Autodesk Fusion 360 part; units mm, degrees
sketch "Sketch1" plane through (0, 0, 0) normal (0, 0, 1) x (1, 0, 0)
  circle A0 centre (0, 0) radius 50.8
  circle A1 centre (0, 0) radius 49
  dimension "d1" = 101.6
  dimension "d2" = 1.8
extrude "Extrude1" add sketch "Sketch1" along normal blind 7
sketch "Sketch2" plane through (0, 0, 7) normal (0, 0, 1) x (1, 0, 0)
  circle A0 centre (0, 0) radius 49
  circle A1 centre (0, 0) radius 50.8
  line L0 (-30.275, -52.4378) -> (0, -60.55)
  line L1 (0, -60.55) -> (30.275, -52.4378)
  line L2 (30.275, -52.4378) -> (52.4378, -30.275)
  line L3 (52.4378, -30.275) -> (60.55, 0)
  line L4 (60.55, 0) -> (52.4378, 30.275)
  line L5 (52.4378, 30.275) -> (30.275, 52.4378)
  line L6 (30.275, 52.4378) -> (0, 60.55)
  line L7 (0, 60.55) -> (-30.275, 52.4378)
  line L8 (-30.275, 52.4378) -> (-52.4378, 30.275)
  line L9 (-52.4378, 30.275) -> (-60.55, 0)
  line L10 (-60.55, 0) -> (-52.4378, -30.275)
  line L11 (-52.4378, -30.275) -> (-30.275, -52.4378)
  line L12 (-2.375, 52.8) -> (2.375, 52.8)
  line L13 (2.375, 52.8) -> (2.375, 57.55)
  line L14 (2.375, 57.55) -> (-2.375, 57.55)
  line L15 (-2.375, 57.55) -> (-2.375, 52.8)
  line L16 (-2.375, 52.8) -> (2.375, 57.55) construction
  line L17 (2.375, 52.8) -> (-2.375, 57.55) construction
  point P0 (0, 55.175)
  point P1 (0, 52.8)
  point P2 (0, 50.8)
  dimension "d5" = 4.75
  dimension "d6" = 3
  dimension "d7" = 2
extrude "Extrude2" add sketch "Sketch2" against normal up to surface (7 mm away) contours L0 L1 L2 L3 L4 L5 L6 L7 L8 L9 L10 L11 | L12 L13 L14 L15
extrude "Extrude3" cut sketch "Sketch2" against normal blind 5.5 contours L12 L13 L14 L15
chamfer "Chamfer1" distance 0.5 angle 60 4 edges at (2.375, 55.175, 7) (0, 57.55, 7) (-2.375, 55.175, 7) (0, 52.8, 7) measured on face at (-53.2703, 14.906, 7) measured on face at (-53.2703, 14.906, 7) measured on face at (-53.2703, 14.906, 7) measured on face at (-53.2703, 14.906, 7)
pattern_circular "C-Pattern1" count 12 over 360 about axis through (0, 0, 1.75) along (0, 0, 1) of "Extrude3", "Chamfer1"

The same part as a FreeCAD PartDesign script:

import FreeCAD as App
import Part
import Sketcher
Q = App.Units.Quantity


def edges_at(feature, points):
    """Names of the edges that pass closest to the given points."""
    edges = feature.Shape.Edges
    near = lambda p: min(range(len(edges)), key=lambda i: edges[i].distToShape(Part.Vertex(*p))[0])
    return sorted({f"Edge{near(p) + 1}" for p in points})

doc = App.newDocument("Part")
body = doc.addObject("PartDesign::Body", "Body")

# Sketch on XY plane
sketch1 = body.newObject("Sketcher::SketchObject", "Sketch")
sketch1.AttachmentSupport = (doc.getObject("XY_Plane"), [""])
sketch1.MapMode = "FlatFace"
sketch1.addGeometry([
    Part.Circle(App.Vector(0, 0, 0), App.Vector(0, 0, 1), 50.8),
    Part.Circle(App.Vector(0, 0, 0), App.Vector(0, 0, 1), 49),
], False)
sketch1.addConstraint([
    Sketcher.Constraint("Coincident", 0, 3, -1, 1),
    Sketcher.Constraint("Coincident", 1, 3, -1, 1),
    Sketcher.Constraint("Diameter", 0, 101.6),
    Sketcher.Constraint("Diameter", 1, 98.0),
])
pad1 = body.newObject("PartDesign::Pad", "Pad")
pad1.Profile = sketch1
pad1.Length = 7

# Sketch on XY plane
sketch2 = body.newObject("Sketcher::SketchObject", "Sketch001")
sketch2.AttachmentSupport = (doc.getObject("XY_Plane"), [""])
sketch2.MapMode = "FlatFace"
sketch2.AttachmentOffset = App.Placement(App.Vector(0, 0, 7), App.Rotation())
sketch2.addGeometry([
    Part.LineSegment(App.Vector(-52.4378, -30.275, 0), App.Vector(-30.275, -52.4378, 0)),  # 0
    Part.LineSegment(App.Vector(-30.275, -52.4378, 0), App.Vector(0, -60.55, 0)),  # 1
    Part.LineSegment(App.Vector(0, -60.55, 0), App.Vector(30.275, -52.4378, 0)),  # 2
    Part.LineSegment(App.Vector(30.275, -52.4378, 0), App.Vector(52.4378, -30.275, 0)),  # 3
    Part.LineSegment(App.Vector(52.4378, -30.275, 0), App.Vector(60.55, 0, 0)),  # 4
    Part.LineSegment(App.Vector(60.55, 0, 0), App.Vector(52.4378, 30.275, 0)),  # 5
    Part.LineSegment(App.Vector(52.4378, 30.275, 0), App.Vector(30.275, 52.4378, 0)),  # 6
    Part.LineSegment(App.Vector(30.275, 52.4378, 0), App.Vector(0, 60.55, 0)),  # 7
    Part.LineSegment(App.Vector(0, 60.55, 0), App.Vector(-30.275, 52.4378, 0)),  # 8
    Part.LineSegment(App.Vector(-30.275, 52.4378, 0), App.Vector(-52.4378, 30.275, 0)),  # 9
    Part.LineSegment(App.Vector(-52.4378, 30.275, 0), App.Vector(-60.55, 0, 0)),  # 10
    Part.LineSegment(App.Vector(-60.55, 0, 0), App.Vector(-52.4378, -30.275, 0)),  # 11
    Part.Circle(App.Vector(0, 0, 0), App.Vector(0, 0, 1), 50.8),  # 12
], False)
sketch2.addConstraint([
    Sketcher.Constraint("Coincident", 0, 2, 1, 1),
    Sketcher.Constraint("Coincident", 1, 2, 2, 1),
    Sketcher.Constraint("Coincident", 2, 2, 3, 1),
    Sketcher.Constraint("Coincident", 3, 2, 4, 1),
    Sketcher.Constraint("Coincident", 4, 2, 5, 1),
    Sketcher.Constraint("Coincident", 5, 2, 6, 1),
    Sketcher.Constraint("Coincident", 6, 2, 7, 1),
    Sketcher.Constraint("Coincident", 7, 2, 8, 1),
    Sketcher.Constraint("Coincident", 8, 2, 9, 1),
    Sketcher.Constraint("Coincident", 9, 2, 10, 1),
    Sketcher.Constraint("Coincident", 10, 2, 11, 1),
    Sketcher.Constraint("Coincident", 11, 2, 0, 1),
    Sketcher.Constraint("Coincident", 12, 3, -1, 1),
    Sketcher.Constraint("Symmetric", 0, 2, 6, 2, -1, 1),
    Sketcher.Constraint("Symmetric", 1, 2, 7, 2, -1, 1),
    Sketcher.Constraint("Symmetric", 2, 2, 8, 2, -1, 1),
    Sketcher.Constraint("Symmetric", 3, 2, 9, 2, -1, 1),
    Sketcher.Constraint("Symmetric", 4, 2, 10, 2, -1, 1),
    Sketcher.Constraint("Symmetric", 5, 2, 11, 2, -1, 1),
    Sketcher.Constraint("Symmetric", 0, 2, 2, 2, -2),
    Sketcher.Constraint("Symmetric", 5, 2, 9, 2, -2),
    Sketcher.Constraint("PointOnObject", 1, 2, -2),
    Sketcher.Constraint("PointOnObject", 4, 2, -1),
    Sketcher.Constraint("Perpendicular", 0, 3),
    Sketcher.Constraint("Perpendicular", 1, 4),
    Sketcher.Constraint("Equal", 0, 1),
    Sketcher.Constraint("Equal", 3, 4),
    Sketcher.Constraint("Diameter", 12, 101.6),
    Sketcher.Constraint("Angle", 1, Q("-15 deg")),
    Sketcher.Constraint("DistanceY", 1, 2, -1, 1, 60.55),
])
pad2 = body.newObject("PartDesign::Pad", "Pad001")
pad2.Profile = sketch2
pad2.Length = 7
pad2.Reversed = True

# Sketch on XY plane
sketch3 = body.newObject("Sketcher::SketchObject", "Sketch002")
sketch3.AttachmentSupport = (doc.getObject("XY_Plane"), [""])
sketch3.MapMode = "FlatFace"
sketch3.AttachmentOffset = App.Placement(App.Vector(0, 0, 7), App.Rotation())
sketch3.addGeometry([
    Part.LineSegment(App.Vector(-2.375, 57.55, 0), App.Vector(-2.375, 52.8, 0)),
    Part.LineSegment(App.Vector(-2.375, 52.8, 0), App.Vector(2.375, 52.8, 0)),
    Part.LineSegment(App.Vector(2.375, 52.8, 0), App.Vector(2.375, 57.55, 0)),
    Part.LineSegment(App.Vector(2.375, 57.55, 0), App.Vector(-2.375, 57.55, 0)),
], False)
sketch3.addConstraint([
    Sketcher.Constraint("Coincident", 0, 2, 1, 1),
    Sketcher.Constraint("Coincident", 1, 2, 2, 1),
    Sketcher.Constraint("Coincident", 2, 2, 3, 1),
    Sketcher.Constraint("Coincident", 3, 2, 0, 1),
    Sketcher.Constraint("Vertical", 0),
    Sketcher.Constraint("Horizontal", 1),
    Sketcher.Constraint("Vertical", 2),
    Sketcher.Constraint("Horizontal", 3),
    Sketcher.Constraint("Equal", 3, 0),
    Sketcher.Constraint("DistanceX", 1, 1, 1, 2, 4.75),
    Sketcher.Constraint("DistanceY", -1, 1, 0, 2, 52.8),
    Sketcher.Constraint("DistanceX", 0, 2, -1, 1, 2.375),
])
pocket1 = body.newObject("PartDesign::Pocket", "Pocket")
pocket1.Profile = sketch3
pocket1.Length = 5.5
doc.recompute()

chamfer = body.newObject("PartDesign::Chamfer", "Chamfer")
chamfer.Base = (pocket1, edges_at(pocket1, [
    (2.375, 55.175, 7),
    (0, 57.55, 7),
    (-2.375, 55.175, 7),
    (0, 52.8, 7),
]))
chamfer.ChamferType = "Distance and Angle"
chamfer.Size = 0.5
chamfer.Angle = 60
doc.recompute()

polarpattern = body.newObject("PartDesign::PolarPattern", "PolarPattern")
polarpattern.Originals = [pocket1, chamfer]
polarpattern.Axis = (doc.getObject("Z_Axis"), [""])
polarpattern.Angle = 360
polarpattern.Occurrences = 12
body.Tip = polarpattern

doc.recompute()
